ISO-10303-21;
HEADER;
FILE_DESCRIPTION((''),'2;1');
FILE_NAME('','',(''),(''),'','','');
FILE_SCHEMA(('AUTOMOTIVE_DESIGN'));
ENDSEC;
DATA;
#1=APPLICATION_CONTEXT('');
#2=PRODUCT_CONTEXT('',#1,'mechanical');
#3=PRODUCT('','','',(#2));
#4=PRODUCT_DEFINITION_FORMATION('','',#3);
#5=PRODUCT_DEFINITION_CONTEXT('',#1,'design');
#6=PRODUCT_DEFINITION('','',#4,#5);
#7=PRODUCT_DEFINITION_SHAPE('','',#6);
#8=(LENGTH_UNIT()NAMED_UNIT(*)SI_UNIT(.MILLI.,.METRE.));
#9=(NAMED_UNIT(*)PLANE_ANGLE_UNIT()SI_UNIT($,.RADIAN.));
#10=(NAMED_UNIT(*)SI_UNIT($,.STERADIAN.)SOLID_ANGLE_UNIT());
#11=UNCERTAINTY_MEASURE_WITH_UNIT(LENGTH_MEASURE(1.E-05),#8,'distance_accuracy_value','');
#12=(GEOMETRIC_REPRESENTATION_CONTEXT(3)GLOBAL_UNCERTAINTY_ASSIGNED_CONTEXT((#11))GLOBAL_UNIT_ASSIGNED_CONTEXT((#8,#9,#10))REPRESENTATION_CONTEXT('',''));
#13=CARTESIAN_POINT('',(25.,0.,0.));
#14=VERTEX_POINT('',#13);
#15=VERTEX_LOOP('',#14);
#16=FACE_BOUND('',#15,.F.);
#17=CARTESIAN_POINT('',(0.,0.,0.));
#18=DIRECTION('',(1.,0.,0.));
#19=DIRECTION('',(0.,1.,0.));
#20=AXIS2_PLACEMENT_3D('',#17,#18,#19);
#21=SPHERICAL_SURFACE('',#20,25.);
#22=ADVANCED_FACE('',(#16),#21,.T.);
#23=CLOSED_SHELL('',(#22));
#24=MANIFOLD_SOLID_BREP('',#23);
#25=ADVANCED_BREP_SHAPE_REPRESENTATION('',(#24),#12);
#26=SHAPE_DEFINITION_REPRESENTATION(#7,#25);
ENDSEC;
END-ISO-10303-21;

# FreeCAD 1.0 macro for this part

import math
import FreeCAD as App
import Part
import Sketcher

V = App.Vector

doc = App.newDocument("Part")
body = doc.addObject("PartDesign::Body", "Body")

sketch1 = body.newObject("Sketcher::SketchObject", "Sketch")
sketch1.AttachmentSupport = (doc.getObject("XY_Plane"), [""])
sketch1.MapMode = "FlatFace"
sketch1.addGeometry([
    Part.LineSegment(V(-25, 0, 0), V(25, 0, 0)),
    Part.ArcOfCircle(Part.Circle(V(0, 0, 0), V(0, 0, 1), 25), math.radians(0), math.radians(180)),
], False)
sketch1.addConstraint([
    Sketcher.Constraint("Coincident", 0, 1, 1, 2),
    Sketcher.Constraint("Coincident", 1, 1, 0, 2),
    Sketcher.Constraint("Horizontal", 0),
    Sketcher.Constraint("Coincident", 1, 3, -1, 1),
    Sketcher.Constraint("PointOnObject", 0, 1, -1),
    Sketcher.Constraint("Radius", 1, 25.0),
])
revolution = body.newObject("PartDesign::Revolution", "Revolution")
revolution.Profile = sketch1
revolution.ReferenceAxis = (sketch1, ["H_Axis"])
revolution.Angle = 360

doc.recompute()
